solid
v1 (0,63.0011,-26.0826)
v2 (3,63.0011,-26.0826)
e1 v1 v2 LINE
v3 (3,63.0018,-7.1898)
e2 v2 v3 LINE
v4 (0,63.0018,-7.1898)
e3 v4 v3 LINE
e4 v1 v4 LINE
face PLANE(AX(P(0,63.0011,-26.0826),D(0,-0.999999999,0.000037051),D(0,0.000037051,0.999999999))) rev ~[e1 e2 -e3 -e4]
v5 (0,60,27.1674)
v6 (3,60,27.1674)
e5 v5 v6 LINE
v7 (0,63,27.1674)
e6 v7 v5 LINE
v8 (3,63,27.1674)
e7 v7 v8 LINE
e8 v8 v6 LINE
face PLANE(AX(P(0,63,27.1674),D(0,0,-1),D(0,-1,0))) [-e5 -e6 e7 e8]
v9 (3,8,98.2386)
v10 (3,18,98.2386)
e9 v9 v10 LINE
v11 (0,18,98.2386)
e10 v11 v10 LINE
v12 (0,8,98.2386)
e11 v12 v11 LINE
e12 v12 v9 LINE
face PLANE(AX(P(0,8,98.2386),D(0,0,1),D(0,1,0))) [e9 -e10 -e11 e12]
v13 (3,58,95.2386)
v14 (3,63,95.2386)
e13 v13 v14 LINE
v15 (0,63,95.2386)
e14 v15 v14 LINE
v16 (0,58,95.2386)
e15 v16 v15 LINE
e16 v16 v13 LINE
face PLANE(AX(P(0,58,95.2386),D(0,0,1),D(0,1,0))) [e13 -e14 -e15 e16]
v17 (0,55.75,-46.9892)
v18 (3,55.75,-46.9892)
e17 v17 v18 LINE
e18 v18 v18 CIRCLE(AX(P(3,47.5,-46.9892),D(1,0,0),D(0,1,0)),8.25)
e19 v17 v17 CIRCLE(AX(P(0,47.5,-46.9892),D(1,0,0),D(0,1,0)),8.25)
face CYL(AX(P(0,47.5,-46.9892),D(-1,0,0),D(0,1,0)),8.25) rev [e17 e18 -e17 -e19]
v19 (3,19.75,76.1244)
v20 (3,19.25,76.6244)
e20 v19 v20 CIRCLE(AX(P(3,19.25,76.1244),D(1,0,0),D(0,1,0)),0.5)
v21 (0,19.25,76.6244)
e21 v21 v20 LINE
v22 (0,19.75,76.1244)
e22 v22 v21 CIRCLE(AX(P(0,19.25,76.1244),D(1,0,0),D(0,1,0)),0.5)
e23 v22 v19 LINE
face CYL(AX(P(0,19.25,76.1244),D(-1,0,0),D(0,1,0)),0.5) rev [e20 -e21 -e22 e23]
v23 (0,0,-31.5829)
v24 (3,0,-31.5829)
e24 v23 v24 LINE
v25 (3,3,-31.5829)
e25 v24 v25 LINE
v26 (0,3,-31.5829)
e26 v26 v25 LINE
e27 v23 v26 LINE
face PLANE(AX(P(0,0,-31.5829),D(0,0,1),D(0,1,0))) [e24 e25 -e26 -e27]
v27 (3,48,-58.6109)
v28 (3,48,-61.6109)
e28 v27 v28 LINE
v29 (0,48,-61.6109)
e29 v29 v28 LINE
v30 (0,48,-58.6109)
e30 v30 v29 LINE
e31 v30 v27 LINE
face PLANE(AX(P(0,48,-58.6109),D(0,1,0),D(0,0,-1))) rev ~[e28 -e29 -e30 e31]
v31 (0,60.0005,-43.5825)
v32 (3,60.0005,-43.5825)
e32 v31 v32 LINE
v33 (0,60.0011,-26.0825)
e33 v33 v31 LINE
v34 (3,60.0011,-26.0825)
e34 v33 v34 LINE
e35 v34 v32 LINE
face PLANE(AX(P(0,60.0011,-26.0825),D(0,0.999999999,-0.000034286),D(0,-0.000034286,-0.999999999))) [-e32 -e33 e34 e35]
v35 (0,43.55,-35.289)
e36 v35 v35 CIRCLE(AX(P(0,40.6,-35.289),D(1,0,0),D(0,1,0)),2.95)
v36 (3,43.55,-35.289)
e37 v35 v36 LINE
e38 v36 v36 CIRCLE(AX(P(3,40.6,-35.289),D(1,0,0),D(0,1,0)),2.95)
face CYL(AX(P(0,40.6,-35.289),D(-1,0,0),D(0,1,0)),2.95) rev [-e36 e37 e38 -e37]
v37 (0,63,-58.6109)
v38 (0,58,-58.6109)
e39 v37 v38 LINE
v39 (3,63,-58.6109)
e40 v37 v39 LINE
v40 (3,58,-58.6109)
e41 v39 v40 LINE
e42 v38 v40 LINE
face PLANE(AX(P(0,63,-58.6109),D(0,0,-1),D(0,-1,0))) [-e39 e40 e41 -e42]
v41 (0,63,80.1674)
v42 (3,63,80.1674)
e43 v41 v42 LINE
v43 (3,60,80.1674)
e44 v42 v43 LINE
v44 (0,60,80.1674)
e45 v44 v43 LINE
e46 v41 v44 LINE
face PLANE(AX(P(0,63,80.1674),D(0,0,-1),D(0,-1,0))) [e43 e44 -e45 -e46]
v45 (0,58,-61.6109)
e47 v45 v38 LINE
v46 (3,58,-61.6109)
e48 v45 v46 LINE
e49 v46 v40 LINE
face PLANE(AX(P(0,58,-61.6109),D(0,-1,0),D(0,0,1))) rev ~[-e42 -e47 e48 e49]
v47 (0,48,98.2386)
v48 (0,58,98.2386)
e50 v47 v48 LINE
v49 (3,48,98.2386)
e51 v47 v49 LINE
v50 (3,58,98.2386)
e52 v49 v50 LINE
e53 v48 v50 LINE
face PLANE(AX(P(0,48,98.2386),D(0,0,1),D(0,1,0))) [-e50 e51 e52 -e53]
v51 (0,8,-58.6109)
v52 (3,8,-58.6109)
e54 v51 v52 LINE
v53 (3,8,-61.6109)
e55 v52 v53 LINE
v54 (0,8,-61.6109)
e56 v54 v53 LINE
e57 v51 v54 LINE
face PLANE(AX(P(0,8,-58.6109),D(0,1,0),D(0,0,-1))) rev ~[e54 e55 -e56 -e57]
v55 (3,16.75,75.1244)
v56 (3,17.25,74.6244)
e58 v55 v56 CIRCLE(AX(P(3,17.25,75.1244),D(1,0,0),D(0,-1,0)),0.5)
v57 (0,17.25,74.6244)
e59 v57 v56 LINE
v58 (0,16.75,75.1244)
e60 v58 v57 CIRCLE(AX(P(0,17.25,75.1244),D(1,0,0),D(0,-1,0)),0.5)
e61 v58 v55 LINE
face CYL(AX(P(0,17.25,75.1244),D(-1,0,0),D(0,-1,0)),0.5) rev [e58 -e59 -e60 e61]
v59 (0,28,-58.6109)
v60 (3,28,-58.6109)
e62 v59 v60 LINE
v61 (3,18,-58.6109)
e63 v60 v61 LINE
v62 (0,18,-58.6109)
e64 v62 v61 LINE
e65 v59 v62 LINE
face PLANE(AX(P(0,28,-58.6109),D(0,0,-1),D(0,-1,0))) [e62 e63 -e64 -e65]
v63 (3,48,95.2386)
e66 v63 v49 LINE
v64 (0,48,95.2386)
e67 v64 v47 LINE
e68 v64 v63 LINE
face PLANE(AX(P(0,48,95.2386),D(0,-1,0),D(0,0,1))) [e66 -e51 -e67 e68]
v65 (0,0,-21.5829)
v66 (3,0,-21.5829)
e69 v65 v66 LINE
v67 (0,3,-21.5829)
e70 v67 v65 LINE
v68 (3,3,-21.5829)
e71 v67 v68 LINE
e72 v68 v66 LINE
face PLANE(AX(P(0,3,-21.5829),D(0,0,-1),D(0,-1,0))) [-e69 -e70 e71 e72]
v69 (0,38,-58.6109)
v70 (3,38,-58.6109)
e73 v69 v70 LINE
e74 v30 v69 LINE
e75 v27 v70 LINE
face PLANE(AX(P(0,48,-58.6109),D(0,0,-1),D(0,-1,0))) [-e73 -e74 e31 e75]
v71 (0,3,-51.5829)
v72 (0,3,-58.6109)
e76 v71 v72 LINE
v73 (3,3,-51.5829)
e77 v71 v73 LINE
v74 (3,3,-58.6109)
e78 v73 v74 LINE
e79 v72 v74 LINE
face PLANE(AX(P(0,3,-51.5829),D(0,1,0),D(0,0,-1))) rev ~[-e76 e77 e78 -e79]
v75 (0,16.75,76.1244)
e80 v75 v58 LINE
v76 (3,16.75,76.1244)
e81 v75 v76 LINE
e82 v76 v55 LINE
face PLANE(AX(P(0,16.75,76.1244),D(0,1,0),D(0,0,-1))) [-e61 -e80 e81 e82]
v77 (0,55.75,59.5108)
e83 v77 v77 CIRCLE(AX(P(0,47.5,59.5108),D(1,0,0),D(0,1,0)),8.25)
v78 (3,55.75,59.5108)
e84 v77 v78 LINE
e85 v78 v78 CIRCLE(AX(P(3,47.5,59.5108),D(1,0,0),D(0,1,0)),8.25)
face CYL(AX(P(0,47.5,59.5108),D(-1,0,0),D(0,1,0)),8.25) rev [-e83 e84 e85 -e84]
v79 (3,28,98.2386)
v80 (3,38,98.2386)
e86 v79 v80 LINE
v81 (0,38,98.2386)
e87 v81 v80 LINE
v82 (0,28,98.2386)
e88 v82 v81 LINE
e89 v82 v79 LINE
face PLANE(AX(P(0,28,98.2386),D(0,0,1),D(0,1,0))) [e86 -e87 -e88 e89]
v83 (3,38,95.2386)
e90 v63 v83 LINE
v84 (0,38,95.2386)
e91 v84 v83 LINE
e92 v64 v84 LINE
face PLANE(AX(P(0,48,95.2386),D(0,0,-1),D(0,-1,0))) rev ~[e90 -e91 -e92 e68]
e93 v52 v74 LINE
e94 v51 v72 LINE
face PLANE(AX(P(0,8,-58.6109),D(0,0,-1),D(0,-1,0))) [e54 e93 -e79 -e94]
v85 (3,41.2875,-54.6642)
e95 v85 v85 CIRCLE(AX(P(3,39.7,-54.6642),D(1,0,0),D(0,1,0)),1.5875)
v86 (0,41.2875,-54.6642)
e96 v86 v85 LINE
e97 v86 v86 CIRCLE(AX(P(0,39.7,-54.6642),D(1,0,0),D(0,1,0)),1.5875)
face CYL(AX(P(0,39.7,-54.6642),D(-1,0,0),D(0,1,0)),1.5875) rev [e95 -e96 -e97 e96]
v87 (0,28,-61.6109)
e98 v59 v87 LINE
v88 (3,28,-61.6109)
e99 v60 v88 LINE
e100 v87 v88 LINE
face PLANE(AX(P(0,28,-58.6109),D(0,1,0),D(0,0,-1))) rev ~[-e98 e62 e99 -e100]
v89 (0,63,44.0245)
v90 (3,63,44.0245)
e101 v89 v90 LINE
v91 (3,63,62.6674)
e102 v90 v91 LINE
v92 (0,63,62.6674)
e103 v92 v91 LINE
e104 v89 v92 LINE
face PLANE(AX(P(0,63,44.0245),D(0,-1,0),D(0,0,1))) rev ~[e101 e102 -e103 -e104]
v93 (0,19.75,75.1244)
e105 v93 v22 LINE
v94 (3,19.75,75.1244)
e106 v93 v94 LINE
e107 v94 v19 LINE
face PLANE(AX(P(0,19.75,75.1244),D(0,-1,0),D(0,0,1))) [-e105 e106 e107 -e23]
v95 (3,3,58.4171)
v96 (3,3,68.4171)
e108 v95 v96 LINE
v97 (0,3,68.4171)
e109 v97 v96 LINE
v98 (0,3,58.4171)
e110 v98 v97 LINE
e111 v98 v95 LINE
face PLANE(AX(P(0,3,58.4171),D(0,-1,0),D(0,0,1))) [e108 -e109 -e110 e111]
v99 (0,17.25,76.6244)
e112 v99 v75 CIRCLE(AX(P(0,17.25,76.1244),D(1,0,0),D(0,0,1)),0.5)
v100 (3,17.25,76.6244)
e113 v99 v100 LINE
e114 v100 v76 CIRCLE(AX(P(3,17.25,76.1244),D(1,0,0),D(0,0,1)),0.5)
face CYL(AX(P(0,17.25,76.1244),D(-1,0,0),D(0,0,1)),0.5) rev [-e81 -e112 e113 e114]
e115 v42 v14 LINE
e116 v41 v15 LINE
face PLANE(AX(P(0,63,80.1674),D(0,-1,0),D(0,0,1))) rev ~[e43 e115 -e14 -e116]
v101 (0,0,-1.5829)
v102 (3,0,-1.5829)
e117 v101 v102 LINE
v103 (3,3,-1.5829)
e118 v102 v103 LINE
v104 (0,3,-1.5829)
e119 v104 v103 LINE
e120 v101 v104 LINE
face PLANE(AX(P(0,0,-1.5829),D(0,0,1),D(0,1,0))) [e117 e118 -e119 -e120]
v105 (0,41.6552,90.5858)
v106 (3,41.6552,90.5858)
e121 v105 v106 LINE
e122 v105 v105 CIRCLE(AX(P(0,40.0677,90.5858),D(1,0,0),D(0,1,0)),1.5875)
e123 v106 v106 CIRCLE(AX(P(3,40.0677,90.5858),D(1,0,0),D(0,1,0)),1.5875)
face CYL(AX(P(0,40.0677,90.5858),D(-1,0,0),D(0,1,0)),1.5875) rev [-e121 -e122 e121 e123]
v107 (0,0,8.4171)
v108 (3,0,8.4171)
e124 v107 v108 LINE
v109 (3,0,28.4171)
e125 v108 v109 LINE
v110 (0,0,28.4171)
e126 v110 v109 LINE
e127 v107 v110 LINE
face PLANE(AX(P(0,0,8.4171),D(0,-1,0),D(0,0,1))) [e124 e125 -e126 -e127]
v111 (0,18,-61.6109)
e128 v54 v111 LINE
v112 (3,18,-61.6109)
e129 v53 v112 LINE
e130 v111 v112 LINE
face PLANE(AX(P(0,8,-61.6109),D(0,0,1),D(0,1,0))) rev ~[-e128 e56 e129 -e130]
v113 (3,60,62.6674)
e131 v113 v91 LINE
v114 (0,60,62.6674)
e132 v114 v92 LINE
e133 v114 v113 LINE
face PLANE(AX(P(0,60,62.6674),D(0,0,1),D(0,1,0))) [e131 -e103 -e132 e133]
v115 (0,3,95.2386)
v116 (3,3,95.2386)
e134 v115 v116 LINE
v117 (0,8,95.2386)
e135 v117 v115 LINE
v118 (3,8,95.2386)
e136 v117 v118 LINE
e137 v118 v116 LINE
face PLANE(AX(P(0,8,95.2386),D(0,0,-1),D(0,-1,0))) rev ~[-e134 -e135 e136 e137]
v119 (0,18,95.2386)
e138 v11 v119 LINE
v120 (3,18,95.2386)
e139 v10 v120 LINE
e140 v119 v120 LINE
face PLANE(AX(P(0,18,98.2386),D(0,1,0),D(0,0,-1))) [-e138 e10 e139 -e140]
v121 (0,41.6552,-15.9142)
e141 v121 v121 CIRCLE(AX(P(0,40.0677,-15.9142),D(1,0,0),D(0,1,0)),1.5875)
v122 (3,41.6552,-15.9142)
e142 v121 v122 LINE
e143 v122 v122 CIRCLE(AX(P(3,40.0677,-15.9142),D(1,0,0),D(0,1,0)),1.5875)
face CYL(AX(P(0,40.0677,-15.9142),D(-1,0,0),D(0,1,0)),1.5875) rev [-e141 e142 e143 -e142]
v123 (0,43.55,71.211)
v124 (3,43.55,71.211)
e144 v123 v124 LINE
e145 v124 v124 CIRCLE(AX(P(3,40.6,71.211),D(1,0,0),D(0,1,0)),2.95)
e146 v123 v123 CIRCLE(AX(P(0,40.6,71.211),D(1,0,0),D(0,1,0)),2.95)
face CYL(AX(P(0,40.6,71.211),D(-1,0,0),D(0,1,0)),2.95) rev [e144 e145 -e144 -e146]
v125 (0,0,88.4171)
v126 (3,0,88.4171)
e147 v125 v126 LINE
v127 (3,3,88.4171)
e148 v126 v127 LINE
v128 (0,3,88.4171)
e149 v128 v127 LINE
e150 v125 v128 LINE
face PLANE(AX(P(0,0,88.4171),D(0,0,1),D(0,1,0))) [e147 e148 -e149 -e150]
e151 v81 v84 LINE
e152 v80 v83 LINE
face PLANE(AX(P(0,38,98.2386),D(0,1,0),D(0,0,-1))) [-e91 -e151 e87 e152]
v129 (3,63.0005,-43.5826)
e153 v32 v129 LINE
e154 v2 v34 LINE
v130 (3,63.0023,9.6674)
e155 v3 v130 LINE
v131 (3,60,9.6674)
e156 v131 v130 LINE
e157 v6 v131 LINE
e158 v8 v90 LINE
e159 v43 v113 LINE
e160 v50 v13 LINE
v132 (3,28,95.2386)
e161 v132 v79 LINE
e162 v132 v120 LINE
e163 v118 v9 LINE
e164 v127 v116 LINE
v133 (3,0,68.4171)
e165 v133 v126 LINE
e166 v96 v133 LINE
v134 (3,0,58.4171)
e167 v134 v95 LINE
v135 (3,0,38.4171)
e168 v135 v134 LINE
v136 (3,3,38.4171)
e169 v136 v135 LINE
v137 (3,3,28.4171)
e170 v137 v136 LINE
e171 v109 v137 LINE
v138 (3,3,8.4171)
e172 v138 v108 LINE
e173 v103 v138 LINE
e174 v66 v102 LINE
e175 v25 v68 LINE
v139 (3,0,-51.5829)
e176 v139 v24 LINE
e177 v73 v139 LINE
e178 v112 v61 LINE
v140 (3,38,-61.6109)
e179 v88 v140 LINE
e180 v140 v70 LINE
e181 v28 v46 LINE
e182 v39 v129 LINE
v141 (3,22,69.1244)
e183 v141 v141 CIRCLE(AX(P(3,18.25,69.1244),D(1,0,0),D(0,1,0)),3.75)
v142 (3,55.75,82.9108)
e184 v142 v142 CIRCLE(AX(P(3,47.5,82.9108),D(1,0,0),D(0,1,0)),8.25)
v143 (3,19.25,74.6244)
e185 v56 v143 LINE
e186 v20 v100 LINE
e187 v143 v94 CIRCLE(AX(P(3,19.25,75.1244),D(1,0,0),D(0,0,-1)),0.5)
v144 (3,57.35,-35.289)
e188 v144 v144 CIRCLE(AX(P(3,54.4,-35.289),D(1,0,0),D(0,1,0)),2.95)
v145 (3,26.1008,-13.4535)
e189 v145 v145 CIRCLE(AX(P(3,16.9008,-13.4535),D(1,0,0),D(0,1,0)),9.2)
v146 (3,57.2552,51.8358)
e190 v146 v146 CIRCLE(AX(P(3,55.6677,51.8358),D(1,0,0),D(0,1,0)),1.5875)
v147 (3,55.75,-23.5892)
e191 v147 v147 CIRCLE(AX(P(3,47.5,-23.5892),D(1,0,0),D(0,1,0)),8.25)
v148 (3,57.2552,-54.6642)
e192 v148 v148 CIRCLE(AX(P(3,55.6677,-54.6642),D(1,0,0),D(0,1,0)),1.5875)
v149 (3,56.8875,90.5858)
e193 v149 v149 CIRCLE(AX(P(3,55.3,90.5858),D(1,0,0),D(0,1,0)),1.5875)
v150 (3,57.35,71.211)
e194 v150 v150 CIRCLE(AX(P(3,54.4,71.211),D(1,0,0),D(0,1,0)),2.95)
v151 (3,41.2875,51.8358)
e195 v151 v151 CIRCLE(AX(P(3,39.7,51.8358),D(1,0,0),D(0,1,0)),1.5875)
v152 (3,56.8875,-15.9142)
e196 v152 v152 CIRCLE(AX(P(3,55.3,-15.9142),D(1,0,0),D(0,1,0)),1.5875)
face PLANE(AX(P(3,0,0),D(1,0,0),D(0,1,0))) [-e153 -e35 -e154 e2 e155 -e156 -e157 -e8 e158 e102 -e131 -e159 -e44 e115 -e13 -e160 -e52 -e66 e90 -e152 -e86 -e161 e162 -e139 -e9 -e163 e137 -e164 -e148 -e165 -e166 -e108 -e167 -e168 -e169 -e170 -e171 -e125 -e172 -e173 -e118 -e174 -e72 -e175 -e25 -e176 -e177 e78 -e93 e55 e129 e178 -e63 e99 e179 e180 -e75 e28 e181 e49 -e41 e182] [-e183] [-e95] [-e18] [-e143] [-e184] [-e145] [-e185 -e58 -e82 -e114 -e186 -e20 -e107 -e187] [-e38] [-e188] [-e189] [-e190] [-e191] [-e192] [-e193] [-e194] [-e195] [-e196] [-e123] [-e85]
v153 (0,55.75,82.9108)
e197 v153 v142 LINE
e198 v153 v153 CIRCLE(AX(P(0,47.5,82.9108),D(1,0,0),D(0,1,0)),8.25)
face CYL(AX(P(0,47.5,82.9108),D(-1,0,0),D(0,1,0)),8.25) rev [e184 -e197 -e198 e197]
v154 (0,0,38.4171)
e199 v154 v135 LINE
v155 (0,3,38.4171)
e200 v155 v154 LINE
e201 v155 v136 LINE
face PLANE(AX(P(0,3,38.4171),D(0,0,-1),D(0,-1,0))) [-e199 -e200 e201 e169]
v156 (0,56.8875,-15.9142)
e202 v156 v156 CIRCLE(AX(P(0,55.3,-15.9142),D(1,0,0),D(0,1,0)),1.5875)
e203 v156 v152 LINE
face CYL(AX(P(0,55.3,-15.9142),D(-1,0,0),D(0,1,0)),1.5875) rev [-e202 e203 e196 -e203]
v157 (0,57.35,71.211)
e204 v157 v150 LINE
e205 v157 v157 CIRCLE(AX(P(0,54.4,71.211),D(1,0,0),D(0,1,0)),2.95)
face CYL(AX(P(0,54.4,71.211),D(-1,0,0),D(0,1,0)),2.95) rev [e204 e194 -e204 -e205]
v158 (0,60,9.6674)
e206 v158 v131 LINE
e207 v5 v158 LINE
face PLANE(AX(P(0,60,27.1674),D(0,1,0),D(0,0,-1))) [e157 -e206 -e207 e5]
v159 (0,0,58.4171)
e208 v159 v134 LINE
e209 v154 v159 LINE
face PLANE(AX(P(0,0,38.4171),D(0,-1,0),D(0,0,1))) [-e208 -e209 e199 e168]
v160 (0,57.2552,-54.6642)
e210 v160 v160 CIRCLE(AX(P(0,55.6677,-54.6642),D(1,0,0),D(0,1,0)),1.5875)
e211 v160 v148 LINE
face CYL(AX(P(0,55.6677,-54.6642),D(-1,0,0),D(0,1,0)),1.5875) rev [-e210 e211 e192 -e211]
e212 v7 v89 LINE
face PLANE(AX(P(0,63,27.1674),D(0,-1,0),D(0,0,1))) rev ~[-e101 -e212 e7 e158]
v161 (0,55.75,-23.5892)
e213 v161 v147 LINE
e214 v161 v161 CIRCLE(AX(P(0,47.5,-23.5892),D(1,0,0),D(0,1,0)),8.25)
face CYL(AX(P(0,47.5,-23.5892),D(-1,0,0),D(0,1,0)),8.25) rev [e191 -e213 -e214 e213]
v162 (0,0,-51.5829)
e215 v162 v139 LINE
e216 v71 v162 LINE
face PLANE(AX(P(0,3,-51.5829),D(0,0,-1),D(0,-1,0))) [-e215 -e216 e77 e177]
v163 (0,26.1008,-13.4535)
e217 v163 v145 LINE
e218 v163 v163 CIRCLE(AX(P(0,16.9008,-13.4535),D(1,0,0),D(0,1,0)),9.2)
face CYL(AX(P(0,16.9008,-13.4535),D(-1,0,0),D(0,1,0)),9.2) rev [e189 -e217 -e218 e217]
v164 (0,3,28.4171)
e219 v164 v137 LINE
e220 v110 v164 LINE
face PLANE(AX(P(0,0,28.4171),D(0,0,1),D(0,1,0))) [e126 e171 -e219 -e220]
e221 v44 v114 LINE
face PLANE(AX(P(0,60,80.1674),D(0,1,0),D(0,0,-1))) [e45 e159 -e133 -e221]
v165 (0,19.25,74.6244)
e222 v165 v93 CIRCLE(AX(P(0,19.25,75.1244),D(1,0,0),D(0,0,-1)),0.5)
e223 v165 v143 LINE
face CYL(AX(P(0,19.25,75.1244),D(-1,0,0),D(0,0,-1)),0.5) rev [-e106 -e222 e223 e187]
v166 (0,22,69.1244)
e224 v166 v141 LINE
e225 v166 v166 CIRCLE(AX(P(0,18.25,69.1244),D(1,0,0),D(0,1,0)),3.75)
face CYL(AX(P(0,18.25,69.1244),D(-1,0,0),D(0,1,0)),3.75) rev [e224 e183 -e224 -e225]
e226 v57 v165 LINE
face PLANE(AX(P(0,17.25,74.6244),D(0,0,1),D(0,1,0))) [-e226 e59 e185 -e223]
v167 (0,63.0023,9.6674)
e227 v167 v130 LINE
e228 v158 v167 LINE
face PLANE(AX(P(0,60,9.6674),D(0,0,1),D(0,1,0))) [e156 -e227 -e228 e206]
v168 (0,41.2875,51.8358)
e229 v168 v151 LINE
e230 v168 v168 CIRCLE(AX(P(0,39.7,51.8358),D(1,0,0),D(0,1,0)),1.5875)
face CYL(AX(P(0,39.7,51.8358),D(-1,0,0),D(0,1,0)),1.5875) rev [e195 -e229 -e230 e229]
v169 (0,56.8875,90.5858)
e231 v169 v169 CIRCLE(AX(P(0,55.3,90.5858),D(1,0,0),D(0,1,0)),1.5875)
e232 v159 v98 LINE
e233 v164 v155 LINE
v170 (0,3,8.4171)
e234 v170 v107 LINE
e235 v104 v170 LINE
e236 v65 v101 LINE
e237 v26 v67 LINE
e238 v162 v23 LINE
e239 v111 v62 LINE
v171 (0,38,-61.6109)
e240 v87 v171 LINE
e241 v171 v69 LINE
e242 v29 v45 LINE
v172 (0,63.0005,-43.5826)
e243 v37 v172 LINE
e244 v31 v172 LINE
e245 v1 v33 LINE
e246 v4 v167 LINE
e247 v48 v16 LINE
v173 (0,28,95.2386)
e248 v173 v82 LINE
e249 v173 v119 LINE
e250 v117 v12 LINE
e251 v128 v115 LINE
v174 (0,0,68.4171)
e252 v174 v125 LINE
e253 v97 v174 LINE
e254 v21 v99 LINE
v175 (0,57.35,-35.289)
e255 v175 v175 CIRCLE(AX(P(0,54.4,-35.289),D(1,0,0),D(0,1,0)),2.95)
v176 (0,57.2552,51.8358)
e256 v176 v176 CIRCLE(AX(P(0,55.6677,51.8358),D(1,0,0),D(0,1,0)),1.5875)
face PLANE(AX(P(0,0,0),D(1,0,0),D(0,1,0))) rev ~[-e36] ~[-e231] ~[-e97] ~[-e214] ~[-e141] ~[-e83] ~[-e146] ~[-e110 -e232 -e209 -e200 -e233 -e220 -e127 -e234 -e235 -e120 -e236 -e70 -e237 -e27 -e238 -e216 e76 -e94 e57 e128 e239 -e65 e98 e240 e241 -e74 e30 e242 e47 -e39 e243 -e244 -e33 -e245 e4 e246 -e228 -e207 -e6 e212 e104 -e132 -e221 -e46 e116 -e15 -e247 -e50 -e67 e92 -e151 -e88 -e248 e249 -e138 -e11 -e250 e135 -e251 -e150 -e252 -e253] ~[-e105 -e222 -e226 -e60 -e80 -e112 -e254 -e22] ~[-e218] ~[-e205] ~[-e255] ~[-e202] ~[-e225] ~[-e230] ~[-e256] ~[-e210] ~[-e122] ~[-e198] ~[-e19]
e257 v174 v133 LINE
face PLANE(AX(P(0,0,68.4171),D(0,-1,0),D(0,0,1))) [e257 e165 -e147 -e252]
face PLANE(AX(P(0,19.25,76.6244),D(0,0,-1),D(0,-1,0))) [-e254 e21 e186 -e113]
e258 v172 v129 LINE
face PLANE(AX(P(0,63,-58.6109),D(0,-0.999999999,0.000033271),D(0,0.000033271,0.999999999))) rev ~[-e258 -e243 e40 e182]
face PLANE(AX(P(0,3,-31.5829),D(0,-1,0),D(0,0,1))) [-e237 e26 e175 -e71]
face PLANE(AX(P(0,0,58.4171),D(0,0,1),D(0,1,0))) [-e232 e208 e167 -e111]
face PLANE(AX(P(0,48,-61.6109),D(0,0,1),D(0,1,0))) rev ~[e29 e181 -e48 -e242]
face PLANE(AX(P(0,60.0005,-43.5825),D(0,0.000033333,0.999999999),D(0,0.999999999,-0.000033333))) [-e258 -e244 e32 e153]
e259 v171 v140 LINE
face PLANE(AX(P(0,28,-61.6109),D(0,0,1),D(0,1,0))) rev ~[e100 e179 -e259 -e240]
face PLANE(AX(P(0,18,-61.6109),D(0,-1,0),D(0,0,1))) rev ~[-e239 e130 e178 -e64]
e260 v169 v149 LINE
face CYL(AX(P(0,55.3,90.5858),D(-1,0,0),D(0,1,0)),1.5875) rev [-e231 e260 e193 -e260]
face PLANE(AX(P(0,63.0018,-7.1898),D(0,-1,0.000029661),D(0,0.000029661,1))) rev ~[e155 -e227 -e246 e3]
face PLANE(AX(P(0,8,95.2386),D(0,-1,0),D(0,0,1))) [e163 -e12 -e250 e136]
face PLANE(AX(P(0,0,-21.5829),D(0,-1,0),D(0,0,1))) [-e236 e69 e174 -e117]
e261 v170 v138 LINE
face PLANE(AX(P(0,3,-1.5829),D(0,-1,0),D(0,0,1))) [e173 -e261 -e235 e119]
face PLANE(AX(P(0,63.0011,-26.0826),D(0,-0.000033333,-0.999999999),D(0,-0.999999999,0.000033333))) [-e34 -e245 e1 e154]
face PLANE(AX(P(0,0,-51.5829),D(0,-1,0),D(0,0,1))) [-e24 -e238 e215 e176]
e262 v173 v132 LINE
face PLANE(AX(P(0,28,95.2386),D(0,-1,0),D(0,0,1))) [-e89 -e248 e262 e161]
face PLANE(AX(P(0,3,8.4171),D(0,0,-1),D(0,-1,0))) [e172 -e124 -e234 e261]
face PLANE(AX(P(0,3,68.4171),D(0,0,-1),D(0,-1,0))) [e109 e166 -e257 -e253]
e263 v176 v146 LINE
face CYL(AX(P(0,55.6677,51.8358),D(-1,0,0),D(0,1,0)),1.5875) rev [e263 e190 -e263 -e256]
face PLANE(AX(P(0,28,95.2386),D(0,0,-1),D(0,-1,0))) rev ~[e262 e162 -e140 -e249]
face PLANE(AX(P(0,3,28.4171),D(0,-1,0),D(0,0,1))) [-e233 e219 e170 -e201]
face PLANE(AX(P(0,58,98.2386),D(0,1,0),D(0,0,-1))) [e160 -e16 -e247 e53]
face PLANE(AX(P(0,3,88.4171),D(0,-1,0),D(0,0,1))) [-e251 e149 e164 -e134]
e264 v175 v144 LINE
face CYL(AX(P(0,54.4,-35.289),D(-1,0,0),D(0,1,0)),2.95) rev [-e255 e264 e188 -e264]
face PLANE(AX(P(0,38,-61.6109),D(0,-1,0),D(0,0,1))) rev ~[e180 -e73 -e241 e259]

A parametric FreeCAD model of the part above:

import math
import FreeCAD as App
import Part
import Sketcher
Q = App.Units.Quantity

doc = App.newDocument("Part")
body = doc.addObject("PartDesign::Body", "Body")

# Sketch on YZ plane
sketch1 = doc.addObject("Sketcher::SketchObject", "Sketch")
body.addObject(sketch1)
sketch1.AttachmentSupport = (doc.YZ_Plane, [""])
sketch1.MapMode = "FlatFace"
sketch1.addGeometry([
    Part.LineSegment(App.Vector(58, -58.6, 0), App.Vector(63, -58.6, 0)),  # 0
    Part.LineSegment(App.Vector(63, -58.6, 0), App.Vector(63, -43.6, 0)),  # 1
    Part.LineSegment(App.Vector(63, -43.6, 0), App.Vector(60, -43.6, 0)),  # 2
    Part.LineSegment(App.Vector(60, -43.6, 0), App.Vector(60, -26.1, 0)),  # 3
    Part.LineSegment(App.Vector(60, -26.1, 0), App.Vector(63, -26.1, 0)),  # 4
    Part.LineSegment(App.Vector(63, -26.1, 0), App.Vector(63, -7.2, 0)),  # 5
    Part.LineSegment(App.Vector(63, -7.2, 0), App.Vector(63, 9.7, 0)),  # 6
    Part.LineSegment(App.Vector(63, 9.7, 0), App.Vector(60, 9.7, 0)),  # 7
    Part.LineSegment(App.Vector(60, 9.7, 0), App.Vector(60, 27.2, 0)),  # 8
    Part.LineSegment(App.Vector(60, 27.2, 0), App.Vector(63, 27.2, 0)),  # 9
    Part.LineSegment(App.Vector(63, 27.2, 0), App.Vector(63, 62.7, 0)),  # 10
    Part.LineSegment(App.Vector(63, 62.7, 0), App.Vector(60, 62.7, 0)),  # 11
    Part.LineSegment(App.Vector(60, 62.7, 0), App.Vector(60, 80.2, 0)),  # 12
    Part.LineSegment(App.Vector(60, 80.2, 0), App.Vector(63, 80.2, 0)),  # 13
    Part.LineSegment(App.Vector(63, 80.2, 0), App.Vector(63, 95.2, 0)),  # 14
    Part.LineSegment(App.Vector(63, 95.2, 0), App.Vector(58, 95.2, 0)),  # 15
    Part.LineSegment(App.Vector(58, 95.2, 0), App.Vector(58, 98.2, 0)),  # 16
    Part.LineSegment(App.Vector(58, 98.2, 0), App.Vector(48, 98.2, 0)),  # 17
    Part.LineSegment(App.Vector(48, 98.2, 0), App.Vector(48, 95.2, 0)),  # 18
    Part.LineSegment(App.Vector(48, 95.2, 0), App.Vector(38, 95.2, 0)),  # 19
    Part.LineSegment(App.Vector(38, 95.2, 0), App.Vector(38, 98.2, 0)),  # 20
    Part.LineSegment(App.Vector(38, 98.2, 0), App.Vector(28, 98.2, 0)),  # 21
    Part.LineSegment(App.Vector(28, 98.2, 0), App.Vector(28, 95.2, 0)),  # 22
    Part.LineSegment(App.Vector(28, 95.2, 0), App.Vector(18, 95.2, 0)),  # 23
    Part.LineSegment(App.Vector(18, 95.2, 0), App.Vector(18, 98.2, 0)),  # 24
    Part.LineSegment(App.Vector(18, 98.2, 0), App.Vector(8, 98.2, 0)),  # 25
    Part.LineSegment(App.Vector(8, 98.2, 0), App.Vector(8, 95.2, 0)),  # 26
    Part.LineSegment(App.Vector(8, 95.2, 0), App.Vector(3, 95.2, 0)),  # 27
    Part.LineSegment(App.Vector(3, 95.2, 0), App.Vector(3, 88.4, 0)),  # 28
    Part.LineSegment(App.Vector(3, 88.4, 0), App.Vector(0, 88.4, 0)),  # 29
    Part.LineSegment(App.Vector(0, 88.4, 0), App.Vector(0, 68.4, 0)),  # 30
    Part.LineSegment(App.Vector(0, 68.4, 0), App.Vector(3, 68.4, 0)),  # 31
    Part.LineSegment(App.Vector(3, 68.4, 0), App.Vector(3, 58.4, 0)),  # 32
    Part.LineSegment(App.Vector(3, 58.4, 0), App.Vector(0, 58.4, 0)),  # 33
    Part.LineSegment(App.Vector(0, 58.4, 0), App.Vector(0, 38.4, 0)),  # 34
    Part.LineSegment(App.Vector(0, 38.4, 0), App.Vector(3, 38.4, 0)),  # 35
    Part.LineSegment(App.Vector(3, 38.4, 0), App.Vector(3, 28.4, 0)),  # 36
    Part.LineSegment(App.Vector(3, 28.4, 0), App.Vector(0, 28.4, 0)),  # 37
    Part.LineSegment(App.Vector(0, 28.4, 0), App.Vector(0, 8.4, 0)),  # 38
    Part.LineSegment(App.Vector(0, 8.4, 0), App.Vector(3, 8.4, 0)),  # 39
    Part.LineSegment(App.Vector(3, 8.4, 0), App.Vector(3, -1.6, 0)),  # 40
    Part.LineSegment(App.Vector(3, -1.6, 0), App.Vector(0, -1.6, 0)),  # 41
    Part.LineSegment(App.Vector(0, -1.6, 0), App.Vector(0, -21.6, 0)),  # 42
    Part.LineSegment(App.Vector(0, -21.6, 0), App.Vector(3, -21.6, 0)),  # 43
    Part.LineSegment(App.Vector(3, -21.6, 0), App.Vector(3, -31.6, 0)),  # 44
    Part.LineSegment(App.Vector(3, -31.6, 0), App.Vector(0, -31.6, 0)),  # 45
    Part.LineSegment(App.Vector(0, -31.6, 0), App.Vector(0, -51.6, 0)),  # 46
    Part.LineSegment(App.Vector(0, -51.6, 0), App.Vector(3, -51.6, 0)),  # 47
    Part.LineSegment(App.Vector(3, -51.6, 0), App.Vector(3, -58.6, 0)),  # 48
    Part.LineSegment(App.Vector(3, -58.6, 0), App.Vector(8, -58.6, 0)),  # 49
    Part.LineSegment(App.Vector(8, -58.6, 0), App.Vector(8, -61.6, 0)),  # 50
    Part.LineSegment(App.Vector(8, -61.6, 0), App.Vector(18, -61.6, 0)),  # 51
    Part.LineSegment(App.Vector(18, -61.6, 0), App.Vector(18, -58.6, 0)),  # 52
    Part.LineSegment(App.Vector(18, -58.6, 0), App.Vector(28, -58.6, 0)),  # 53
    Part.LineSegment(App.Vector(28, -58.6, 0), App.Vector(28, -61.6, 0)),  # 54
    Part.LineSegment(App.Vector(28, -61.6, 0), App.Vector(38, -61.6, 0)),  # 55
    Part.LineSegment(App.Vector(38, -61.6, 0), App.Vector(38, -58.6, 0)),  # 56
    Part.LineSegment(App.Vector(38, -58.6, 0), App.Vector(48, -58.6, 0)),  # 57
    Part.LineSegment(App.Vector(48, -58.6, 0), App.Vector(48, -61.6, 0)),  # 58
    Part.LineSegment(App.Vector(48, -61.6, 0), App.Vector(58, -61.6, 0)),  # 59
    Part.LineSegment(App.Vector(58, -61.6, 0), App.Vector(58, -58.6, 0)),  # 60
    Part.Circle(App.Vector(16.9, -13.5, 0), App.Vector(0, 0, 1), 9.2),  # 61
    Part.Circle(App.Vector(39.7, -54.7, 0), App.Vector(0, 0, 1), 1.6),  # 62
    Part.Circle(App.Vector(40.6, -35.3, 0), App.Vector(0, 0, 1), 3),  # 63
    Part.Circle(App.Vector(47.5, -47, 0), App.Vector(0, 0, 1), 8.2),  # 64
    Part.Circle(App.Vector(55.7, -54.7, 0), App.Vector(0, 0, 1), 1.6),  # 65
    Part.Circle(App.Vector(54.4, -35.3, 0), App.Vector(0, 0, 1), 3),  # 66
    Part.Circle(App.Vector(47.5, -23.6, 0), App.Vector(0, 0, 1), 8.2),  # 67
    Part.Circle(App.Vector(40.1, -15.9, 0), App.Vector(0, 0, 1), 1.6),  # 68
    Part.Circle(App.Vector(55.3, -15.9, 0), App.Vector(0, 0, 1), 1.6),  # 69
    Part.Circle(App.Vector(18.2, 69.1, 0), App.Vector(0, 0, 1), 3.8),  # 70
    Part.LineSegment(App.Vector(16.8, 75.1, 0), App.Vector(16.8, 76.1, 0)),  # 71
    Part.ArcOfCircle(Part.Circle(App.Vector(17.2, 76.1, 0), App.Vector(0, 0, 1), 0.5), math.radians(90), math.radians(180)),  # 72
    Part.LineSegment(App.Vector(17.2, 76.6, 0), App.Vector(19.2, 76.6, 0)),  # 73
    Part.ArcOfCircle(Part.Circle(App.Vector(19.2, 76.1, 0), App.Vector(0, 0, 1), 0.5), math.radians(0), math.radians(90)),  # 74
    Part.LineSegment(App.Vector(19.8, 76.1, 0), App.Vector(19.8, 75.1, 0)),  # 75
    Part.ArcOfCircle(Part.Circle(App.Vector(19.2, 75.1, 0), App.Vector(0, 0, 1), 0.5), math.radians(-90), math.radians(0)),  # 76
    Part.LineSegment(App.Vector(19.2, 74.6, 0), App.Vector(17.2, 74.6, 0)),  # 77
    Part.ArcOfCircle(Part.Circle(App.Vector(17.2, 75.1, 0), App.Vector(0, 0, 1), 0.5), math.radians(180), math.radians(270)),  # 78
    Part.Circle(App.Vector(39.7, 51.8, 0), App.Vector(0, 0, 1), 1.6),  # 79
    Part.Circle(App.Vector(55.7, 51.8, 0), App.Vector(0, 0, 1), 1.6),  # 80
    Part.Circle(App.Vector(40.6, 71.2, 0), App.Vector(0, 0, 1), 3),  # 81
    Part.Circle(App.Vector(40.1, 90.6, 0), App.Vector(0, 0, 1), 1.6),  # 82
    Part.Circle(App.Vector(47.5, 59.5, 0), App.Vector(0, 0, 1), 8.2),  # 83
    Part.Circle(App.Vector(54.4, 71.2, 0), App.Vector(0, 0, 1), 3),  # 84
    Part.Circle(App.Vector(47.5, 82.9, 0), App.Vector(0, 0, 1), 8.2),  # 85
    Part.Circle(App.Vector(55.3, 90.6, 0), App.Vector(0, 0, 1), 1.6),  # 86
], False)
sketch1.addConstraint([
    Sketcher.Constraint("Coincident", 0, 2, 1, 1),
    Sketcher.Constraint("Coincident", 1, 2, 2, 1),
    Sketcher.Constraint("Coincident", 2, 2, 3, 1),
    Sketcher.Constraint("Coincident", 3, 2, 4, 1),
    Sketcher.Constraint("Coincident", 4, 2, 5, 1),
    Sketcher.Constraint("Coincident", 5, 2, 6, 1),
    Sketcher.Constraint("Coincident", 6, 2, 7, 1),
    Sketcher.Constraint("Coincident", 7, 2, 8, 1),
    Sketcher.Constraint("Coincident", 8, 2, 9, 1),
    Sketcher.Constraint("Coincident", 9, 2, 10, 1),
    Sketcher.Constraint("Coincident", 10, 2, 11, 1),
    Sketcher.Constraint("Coincident", 11, 2, 12, 1),
    Sketcher.Constraint("Coincident", 12, 2, 13, 1),
    Sketcher.Constraint("Coincident", 13, 2, 14, 1),
    Sketcher.Constraint("Coincident", 14, 2, 15, 1),
    Sketcher.Constraint("Coincident", 15, 2, 16, 1),
    Sketcher.Constraint("Coincident", 16, 2, 17, 1),
    Sketcher.Constraint("Coincident", 17, 2, 18, 1),
    Sketcher.Constraint("Coincident", 18, 2, 19, 1),
    Sketcher.Constraint("Coincident", 19, 2, 20, 1),
    Sketcher.Constraint("Coincident", 20, 2, 21, 1),
    Sketcher.Constraint("Coincident", 21, 2, 22, 1),
    Sketcher.Constraint("Coincident", 22, 2, 23, 1),
    Sketcher.Constraint("Coincident", 23, 2, 24, 1),
    Sketcher.Constraint("Coincident", 24, 2, 25, 1),
    Sketcher.Constraint("Coincident", 25, 2, 26, 1),
    Sketcher.Constraint("Coincident", 26, 2, 27, 1),
    Sketcher.Constraint("Coincident", 27, 2, 28, 1),
    Sketcher.Constraint("Coincident", 28, 2, 29, 1),
    Sketcher.Constraint("Coincident", 29, 2, 30, 1),
    Sketcher.Constraint("Coincident", 30, 2, 31, 1),
    Sketcher.Constraint("Coincident", 31, 2, 32, 1),
    Sketcher.Constraint("Coincident", 32, 2, 33, 1),
    Sketcher.Constraint("Coincident", 33, 2, 34, 1),
    Sketcher.Constraint("Coincident", 34, 2, 35, 1),
    Sketcher.Constraint("Coincident", 35, 2, 36, 1),
    Sketcher.Constraint("Coincident", 36, 2, 37, 1),
    Sketcher.Constraint("Coincident", 37, 2, 38, 1),
    Sketcher.Constraint("Coincident", 38, 2, 39, 1),
    Sketcher.Constraint("Coincident", 39, 2, 40, 1),
    Sketcher.Constraint("Coincident", 40, 2, 41, 1),
    Sketcher.Constraint("Coincident", 41, 2, 42, 1),
    Sketcher.Constraint("Coincident", 42, 2, 43, 1),
    Sketcher.Constraint("Coincident", 43, 2, 44, 1),
    Sketcher.Constraint("Coincident", 44, 2, 45, 1),
    Sketcher.Constraint("Coincident", 45, 2, 46, 1),
    Sketcher.Constraint("Coincident", 46, 2, 47, 1),
    Sketcher.Constraint("Coincident", 47, 2, 48, 1),
    Sketcher.Constraint("Coincident", 48, 2, 49, 1),
    Sketcher.Constraint("Coincident", 49, 2, 50, 1),
    Sketcher.Constraint("Coincident", 50, 2, 51, 1),
    Sketcher.Constraint("Coincident", 51, 2, 52, 1),
    Sketcher.Constraint("Coincident", 52, 2, 53, 1),
    Sketcher.Constraint("Coincident", 53, 2, 54, 1),
    Sketcher.Constraint("Coincident", 54, 2, 55, 1),
    Sketcher.Constraint("Coincident", 55, 2, 56, 1),
    Sketcher.Constraint("Coincident", 56, 2, 57, 1),
    Sketcher.Constraint("Coincident", 57, 2, 58, 1),
    Sketcher.Constraint("Coincident", 58, 2, 59, 1),
    Sketcher.Constraint("Coincident", 59, 2, 60, 1),
    Sketcher.Constraint("Coincident", 60, 2, 0, 1),
    Sketcher.Constraint("Tangent", 71, 2, 72, 2),
    Sketcher.Constraint("Tangent", 72, 1, 73, 1),
    Sketcher.Constraint("Tangent", 73, 2, 74, 2),
    Sketcher.Constraint("Tangent", 74, 1, 75, 1),
    Sketcher.Constraint("Tangent", 75, 2, 76, 2),
    Sketcher.Constraint("Tangent", 76, 1, 77, 1),
    Sketcher.Constraint("Tangent", 77, 2, 78, 2),
    Sketcher.Constraint("Tangent", 78, 1, 71, 1),
    Sketcher.Constraint("Horizontal", 0),
    Sketcher.Constraint("Horizontal", 2),
    Sketcher.Constraint("Horizontal", 4),
    Sketcher.Constraint("Horizontal", 7),
    Sketcher.Constraint("Vertical", 8),
    Sketcher.Constraint("Horizontal", 9),
    Sketcher.Constraint("Vertical", 10),
    Sketcher.Constraint("Horizontal", 11),
    Sketcher.Constraint("Vertical", 12),
    Sketcher.Constraint("Horizontal", 13),
    Sketcher.Constraint("Vertical", 14),
    Sketcher.Constraint("Horizontal", 15),
    Sketcher.Constraint("Vertical", 16),
    Sketcher.Constraint("Horizontal", 17),
    Sketcher.Constraint("Vertical", 18),
    Sketcher.Constraint("Horizontal", 19),
    Sketcher.Constraint("Vertical", 20),
    Sketcher.Constraint("Horizontal", 21),
    Sketcher.Constraint("Vertical", 22),
    Sketcher.Constraint("Horizontal", 23),
    Sketcher.Constraint("Vertical", 24),
    Sketcher.Constraint("Horizontal", 25),
    Sketcher.Constraint("Vertical", 26),
    Sketcher.Constraint("Horizontal", 27),
    Sketcher.Constraint("Vertical", 28),
    Sketcher.Constraint("Horizontal", 29),
    Sketcher.Constraint("Vertical", 30),
    Sketcher.Constraint("Horizontal", 31),
    Sketcher.Constraint("Vertical", 32),
    Sketcher.Constraint("Horizontal", 33),
    Sketcher.Constraint("Vertical", 34),
    Sketcher.Constraint("Horizontal", 35),
    Sketcher.Constraint("Vertical", 36),
    Sketcher.Constraint("Horizontal", 37),
    Sketcher.Constraint("Vertical", 38),
    Sketcher.Constraint("Horizontal", 39),
    Sketcher.Constraint("Vertical", 40),
    Sketcher.Constraint("Horizontal", 41),
    Sketcher.Constraint("Vertical", 42),
    Sketcher.Constraint("Horizontal", 43),
    Sketcher.Constraint("Vertical", 44),
    Sketcher.Constraint("Horizontal", 45),
    Sketcher.Constraint("Vertical", 46),
    Sketcher.Constraint("Horizontal", 47),
    Sketcher.Constraint("Vertical", 48),
    Sketcher.Constraint("Horizontal", 49),
    Sketcher.Constraint("Vertical", 50),
    Sketcher.Constraint("Horizontal", 51),
    Sketcher.Constraint("Vertical", 52),
    Sketcher.Constraint("Horizontal", 53),
    Sketcher.Constraint("Vertical", 54),
    Sketcher.Constraint("Horizontal", 55),
    Sketcher.Constraint("Vertical", 56),
    Sketcher.Constraint("Horizontal", 57),
    Sketcher.Constraint("Vertical", 58),
    Sketcher.Constraint("Horizontal", 59),
    Sketcher.Constraint("Vertical", 60),
    Sketcher.Constraint("Vertical", 71),
    Sketcher.Constraint("Horizontal", 73),
    Sketcher.Constraint("Vertical", 75),
    Sketcher.Constraint("Horizontal", 77),
    Sketcher.Constraint("Equal", 62, 65),
    Sketcher.Constraint("Equal", 63, 66),
    Sketcher.Constraint("Equal", 64, 67),
    Sketcher.Constraint("Equal", 65, 68),
    Sketcher.Constraint("Equal", 68, 69),
    Sketcher.Constraint("Equal", 72, 74),
    Sketcher.Constraint("Equal", 74, 76),
    Sketcher.Constraint("Equal", 76, 78),
    Sketcher.Constraint("Equal", 69, 79),
    Sketcher.Constraint("Equal", 79, 80),
    Sketcher.Constraint("Equal", 66, 81),
    Sketcher.Constraint("Equal", 80, 82),
    Sketcher.Constraint("Equal", 67, 83),
    Sketcher.Constraint("Equal", 81, 84),
    Sketcher.Constraint("Equal", 83, 85),
    Sketcher.Constraint("Equal", 82, 86),
    Sketcher.Constraint("PointOnObject", 29, 2, -2),
    Sketcher.Constraint("PointOnObject", 33, 2, -2),
    Sketcher.Constraint("PointOnObject", 37, 2, -2),
    Sketcher.Constraint("PointOnObject", 41, 2, -2),
    Sketcher.Constraint("PointOnObject", 45, 2, -2),
    Sketcher.Constraint("Parallel", 1, 3),
    Sketcher.Constraint("Parallel", 3, 5),
    Sketcher.Constraint("Parallel", 5, 6),
    Sketcher.Constraint("Horizontal", 62, 3, 65, 3),
    Sketcher.Constraint("Horizontal", 63, 3, 66, 3),
    Sketcher.Constraint("Horizontal", 68, 3, 69, 3),
    Sketcher.Constraint("Horizontal", 79, 3, 80, 3),
    Sketcher.Constraint("Horizontal", 81, 3, 84, 3),
    Sketcher.Constraint("Horizontal", 82, 3, 86, 3),
    Sketcher.Constraint("Horizontal", 15, 2, 18, 2),
    Sketcher.Constraint("Horizontal", 17, 2, 20, 2),
    Sketcher.Constraint("Horizontal", 19, 2, 22, 2),
    Sketcher.Constraint("Horizontal", 21, 2, 24, 2),
    Sketcher.Constraint("Horizontal", 23, 2, 26, 2),
    Sketcher.Constraint("Horizontal", 0, 2, 48, 2),
    Sketcher.Constraint("Horizontal", 49, 2, 52, 2),
    Sketcher.Constraint("Horizontal", 51, 2, 54, 2),
    Sketcher.Constraint("Horizontal", 53, 2, 56, 2),
    Sketcher.Constraint("Horizontal", 55, 2, 58, 2),
    Sketcher.Constraint("Vertical", 64, 3, 67, 3),
    Sketcher.Constraint("Vertical", 62, 3, 79, 3),
    Sketcher.Constraint("Vertical", 65, 3, 80, 3),
    Sketcher.Constraint("Vertical", 63, 3, 81, 3),
    Sketcher.Constraint("Vertical", 68, 3, 82, 3),
    Sketcher.Constraint("Vertical", 67, 3, 83, 3),
    Sketcher.Constraint("Vertical", 66, 3, 84, 3),
    Sketcher.Constraint("Vertical", 83, 3, 85, 3),
    Sketcher.Constraint("Vertical", 69, 3, 86, 3),
    Sketcher.Constraint("Vertical", 0, 2, 9, 2),
    Sketcher.Constraint("Vertical", 8, 2, 11, 2),
    Sketcher.Constraint("Vertical", 10, 2, 13, 2),
    Sketcher.Constraint("Vertical", 28, 2, 31, 2),
    Sketcher.Constraint("Vertical", 32, 2, 35, 2),
    Sketcher.Constraint("Vertical", 36, 2, 39, 2),
    Sketcher.Constraint("Vertical", 40, 2, 43, 2),
    Sketcher.Constraint("Vertical", 44, 2, 47, 2),
    Sketcher.Constraint("Vertical", 26, 2, 49, 2),
    Sketcher.Constraint("Vertical", 24, 2, 51, 2),
    Sketcher.Constraint("Vertical", 22, 2, 53, 2),
    Sketcher.Constraint("Vertical", 20, 2, 55, 2),
    Sketcher.Constraint("Vertical", 18, 2, 57, 2),
    Sketcher.Constraint("Vertical", 16, 2, 59, 2),
    Sketcher.Constraint("Equal", 2, 4),
    Sketcher.Constraint("Equal", 4, 9),
    Sketcher.Constraint("Equal", 17, 19),
    Sketcher.Constraint("Equal", 19, 21),
    Sketcher.Constraint("Equal", 21, 23),
    Sketcher.Constraint("Equal", 23, 25),
    Sketcher.Constraint("Equal", 15, 27),
    Sketcher.Constraint("Equal", 13, 29),
    Sketcher.Constraint("Equal", 8, 12),
    Sketcher.Constraint("Equal", 47, 16),
    Sketcher.Constraint("Equal", 59, 32),
    Sketcher.Constraint("Equal", 30, 34),
    Sketcher.Constraint("Equal", 32, 36),
    Sketcher.Constraint("Equal", 34, 38),
    Sketcher.Constraint("Equal", 36, 40),
    Sketcher.Constraint("Equal", 38, 42),
    Sketcher.Constraint("Equal", 40, 44),
    Sketcher.Constraint("Equal", 42, 46),
    Sketcher.Constraint("Equal", 26, 50),
    Sketcher.Constraint("DistanceX", 2, 2, 2, 1, Q("3 mm")),
    Sketcher.Constraint("DistanceX", 17, 2, 17, 1, Q("10 mm")),
    Sketcher.Constraint("DistanceY", 30, 2, 30, 1, Q("20 mm")),
    Sketcher.Constraint("Diameter", 61, Q("18.4 mm")),
    Sketcher.Constraint("Diameter", 63, Q("5.9 mm")),
    Sketcher.Constraint("Diameter", 64, Q("16.5 mm")),
    Sketcher.Constraint("Diameter", 70, Q("7.5 mm")),
    Sketcher.Constraint("Radius", 72, Q("0.5 mm")),
    Sketcher.Constraint("DistanceX", 0, 1, 0, 2, Q("5 mm")),
    Sketcher.Constraint("DistanceX", 73, 1, 73, 2, Q("2 mm")),
    Sketcher.Constraint("DistanceY", 71, 1, 71, 2, Q("1 mm")),
    Sketcher.Constraint("Diameter", 62, Q("3.175 mm")),
    Sketcher.Constraint("DistanceY", 8, 1, 8, 2, Q("17.5 mm")),
    Sketcher.Constraint("DistanceY", 10, 1, 10, 2, Q("35.5 mm")),
    Sketcher.Constraint("Distance", 3, Q("17.5 mm")),
    Sketcher.Constraint("DistanceX", -1, 1, 62, 3, Q("39.7 mm")),
    Sketcher.Constraint("DistanceX", -1, 1, 63, 3, Q("40.6 mm")),
    Sketcher.Constraint("DistanceX", -1, 1, 64, 3, Q("47.5 mm")),
    Sketcher.Constraint("DistanceX", -1, 1, 66, 3, Q("54.4 mm")),
    Sketcher.Constraint("DistanceX", -1, 1, 69, 3, Q("55.3 mm")),
    Sketcher.Constraint("DistanceY", 48, 2, 48, 1, Q("7.028 mm")),
    Sketcher.Constraint("DistanceX", -1, 1, 70, 3, Q("18.25 mm")),
    Sketcher.Constraint("DistanceX", -1, 1, 72, 3, Q("17.25 mm")),
    Sketcher.Constraint("DistanceX", 7, 2, 7, 1, Q("3.0023 mm")),
    Sketcher.Constraint("DistanceY", 14, 1, 14, 2, Q("15.0712 mm")),
    Sketcher.Constraint("DistanceY", 28, 2, 28, 1, Q("6.8215 mm")),
    Sketcher.Constraint("DistanceY", 63, 3, -1, 1, Q("35.289 mm")),
    Sketcher.Constraint("DistanceY", -1, 1, 81, 3, Q("71.211 mm")),
    Sketcher.Constraint("DistanceY", 0, 2, -1, 1, Q("58.611 mm")),
    Sketcher.Constraint("Distance", 1, Q("15.0283 mm")),
    Sketcher.Constraint("Distance", 5, Q("18.8928 mm")),
    Sketcher.Constraint("DistanceX", -1, 1, 61, 3, Q("16.9008 mm")),
    Sketcher.Constraint("DistanceY", 61, 3, -1, 1, Q("13.4535 mm")),
    Sketcher.Constraint("DistanceY", 62, 3, -1, 1, Q("54.6642 mm")),
    Sketcher.Constraint("DistanceY", 64, 3, -1, 1, Q("46.9892 mm")),
    Sketcher.Constraint("DistanceX", -1, 1, 65, 3, Q("55.6677 mm")),
    Sketcher.Constraint("DistanceY", 67, 3, -1, 1, Q("23.5892 mm")),
    Sketcher.Constraint("DistanceX", -1, 1, 68, 3, Q("40.0677 mm")),
    Sketcher.Constraint("DistanceY", 68, 3, -1, 1, Q("15.9142 mm")),
    Sketcher.Constraint("DistanceY", -1, 1, 70, 3, Q("69.1244 mm")),
    Sketcher.Constraint("DistanceY", -1, 1, 72, 3, Q("76.1244 mm")),
    Sketcher.Constraint("DistanceY", -1, 1, 79, 3, Q("51.8358 mm")),
    Sketcher.Constraint("DistanceY", -1, 1, 82, 3, Q("90.5858 mm")),
    Sketcher.Constraint("DistanceY", -1, 1, 83, 3, Q("59.5108 mm")),
    Sketcher.Constraint("DistanceY", -1, 1, 85, 3, Q("82.9108 mm")),
])
pad1 = doc.addObject("PartDesign::Pad", "Pad")
body.addObject(pad1)
pad1.Profile = sketch1
pad1.Length = 3

doc.recompute()
